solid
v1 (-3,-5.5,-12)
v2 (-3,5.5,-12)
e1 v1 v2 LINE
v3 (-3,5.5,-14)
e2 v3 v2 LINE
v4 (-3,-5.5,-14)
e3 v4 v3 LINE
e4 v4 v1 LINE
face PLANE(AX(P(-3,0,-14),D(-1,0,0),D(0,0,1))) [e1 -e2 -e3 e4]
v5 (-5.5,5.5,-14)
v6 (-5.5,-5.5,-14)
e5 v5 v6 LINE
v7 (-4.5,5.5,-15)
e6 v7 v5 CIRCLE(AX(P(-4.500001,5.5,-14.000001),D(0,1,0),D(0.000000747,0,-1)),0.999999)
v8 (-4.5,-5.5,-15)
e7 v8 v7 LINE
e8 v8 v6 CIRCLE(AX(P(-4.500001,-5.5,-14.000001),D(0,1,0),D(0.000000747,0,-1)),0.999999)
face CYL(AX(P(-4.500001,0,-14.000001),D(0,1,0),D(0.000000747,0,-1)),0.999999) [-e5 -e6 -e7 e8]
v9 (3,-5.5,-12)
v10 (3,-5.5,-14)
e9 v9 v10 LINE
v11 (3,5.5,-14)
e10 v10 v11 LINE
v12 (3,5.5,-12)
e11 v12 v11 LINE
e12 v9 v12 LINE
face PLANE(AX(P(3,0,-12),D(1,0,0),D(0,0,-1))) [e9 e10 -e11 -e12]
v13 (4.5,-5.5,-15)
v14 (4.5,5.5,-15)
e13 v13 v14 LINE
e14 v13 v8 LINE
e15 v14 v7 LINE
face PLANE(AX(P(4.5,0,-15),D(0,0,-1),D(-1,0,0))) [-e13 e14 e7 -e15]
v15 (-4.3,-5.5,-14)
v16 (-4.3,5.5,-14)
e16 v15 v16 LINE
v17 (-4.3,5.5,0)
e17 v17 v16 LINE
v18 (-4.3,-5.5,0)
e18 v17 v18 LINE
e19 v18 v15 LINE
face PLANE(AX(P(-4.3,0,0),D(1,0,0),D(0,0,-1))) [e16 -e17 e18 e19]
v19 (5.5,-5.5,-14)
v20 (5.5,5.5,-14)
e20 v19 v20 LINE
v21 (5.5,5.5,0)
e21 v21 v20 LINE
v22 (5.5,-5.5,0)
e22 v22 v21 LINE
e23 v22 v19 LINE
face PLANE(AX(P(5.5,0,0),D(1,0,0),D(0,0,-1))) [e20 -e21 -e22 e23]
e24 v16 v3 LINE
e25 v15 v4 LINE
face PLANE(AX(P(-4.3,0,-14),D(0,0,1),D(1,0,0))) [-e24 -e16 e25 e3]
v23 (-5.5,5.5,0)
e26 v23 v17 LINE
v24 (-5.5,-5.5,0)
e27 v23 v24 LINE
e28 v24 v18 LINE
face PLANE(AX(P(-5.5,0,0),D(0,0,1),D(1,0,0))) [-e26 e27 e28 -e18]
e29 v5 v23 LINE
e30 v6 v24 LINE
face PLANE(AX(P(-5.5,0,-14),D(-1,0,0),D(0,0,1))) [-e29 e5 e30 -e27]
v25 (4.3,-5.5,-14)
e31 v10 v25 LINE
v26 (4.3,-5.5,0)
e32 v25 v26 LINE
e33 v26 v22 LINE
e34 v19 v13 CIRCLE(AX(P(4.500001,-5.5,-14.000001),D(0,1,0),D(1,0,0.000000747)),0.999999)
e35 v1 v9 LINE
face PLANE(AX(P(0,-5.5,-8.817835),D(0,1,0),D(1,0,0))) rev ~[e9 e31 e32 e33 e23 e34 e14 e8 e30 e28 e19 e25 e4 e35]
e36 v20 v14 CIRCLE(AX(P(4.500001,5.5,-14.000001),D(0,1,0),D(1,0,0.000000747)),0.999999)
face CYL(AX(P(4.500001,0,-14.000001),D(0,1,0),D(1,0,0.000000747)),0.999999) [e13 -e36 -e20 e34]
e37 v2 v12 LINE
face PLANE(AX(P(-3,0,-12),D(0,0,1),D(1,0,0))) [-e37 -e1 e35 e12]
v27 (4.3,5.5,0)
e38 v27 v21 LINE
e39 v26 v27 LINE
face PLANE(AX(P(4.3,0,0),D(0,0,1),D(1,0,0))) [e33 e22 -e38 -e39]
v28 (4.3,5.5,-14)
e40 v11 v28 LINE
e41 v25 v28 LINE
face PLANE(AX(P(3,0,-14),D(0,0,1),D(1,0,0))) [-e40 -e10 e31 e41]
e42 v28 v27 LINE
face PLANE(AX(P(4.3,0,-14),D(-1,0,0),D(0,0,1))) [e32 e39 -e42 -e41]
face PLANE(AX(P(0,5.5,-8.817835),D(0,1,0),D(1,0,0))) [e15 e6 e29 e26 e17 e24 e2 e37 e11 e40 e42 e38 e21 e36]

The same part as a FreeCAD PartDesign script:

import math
import FreeCAD as App
import Part
import Sketcher

V = App.Vector

doc = App.newDocument("Part")
params = doc.addObject("Spreadsheet::Sheet", "Params")
for row, (alias, value) in enumerate([
    ("sketch1_radius", "0.999999 mm"),
    ("sketch1_width", "6 mm"),
    ("sketch1_width2", "9 mm"),
    ("sketch1_height", "14 mm"),
    ("sketch1_height2", "2 mm"),
    ("pad1_length", "11 mm"),
], start=1):
    params.set(f"A{row}", alias)
    params.set(f"B{row}", "=" + value)
    params.setAlias(f"B{row}", alias)

body = doc.addObject("PartDesign::Body", "Body")

# Sketch on XZ plane
sketch1 = doc.addObject("Sketcher::SketchObject", "Sketch")
body.addObject(sketch1)
sketch1.AttachmentSupport = (doc.XZ_Plane, [""])
sketch1.MapMode = "FlatFace"
sketch1.addGeometry([
    Part.LineSegment(V(-4.3, 0, 0), V(-4.3, -14, 0)),  # 0
    Part.LineSegment(V(-4.3, -14, 0), V(-3, -14, 0)),  # 1
    Part.LineSegment(V(-3, -14, 0), V(-3, -12, 0)),  # 2
    Part.LineSegment(V(-3, -12, 0), V(3, -12, 0)),  # 3
    Part.LineSegment(V(3, -12, 0), V(3, -14, 0)),  # 4
    Part.LineSegment(V(3, -14, 0), V(4.3, -14, 0)),  # 5
    Part.LineSegment(V(4.3, -14, 0), V(4.3, 0, 0)),  # 6
    Part.LineSegment(V(4.3, 0, 0), V(5.5, 0, 0)),  # 7
    Part.LineSegment(V(5.5, 0, 0), V(5.5, -14, 0)),  # 8
    Part.ArcOfCircle(Part.Circle(V(4.500001, -14.000001, 0), V(0, 0, 1), 0.999999), math.radians(-90.000043), math.radians(0.000043)),  # 9
    Part.LineSegment(V(4.5, -15, 0), V(-4.5, -15, 0)),  # 10
    Part.ArcOfCircle(Part.Circle(V(-4.500001, -14.000001, 0), V(0, 0, 1), 0.999999), math.radians(179.999957), math.radians(270.000043)),  # 11
    Part.LineSegment(V(-5.5, -14, 0), V(-5.5, 0, 0)),  # 12
    Part.LineSegment(V(-5.5, 0, 0), V(-4.3, 0, 0)),  # 13
], False)
sketch1.addConstraint([
    Sketcher.Constraint("Coincident", 0, 2, 1, 1),
    Sketcher.Constraint("Coincident", 1, 2, 2, 1),
    Sketcher.Constraint("Coincident", 2, 2, 3, 1),
    Sketcher.Constraint("Coincident", 3, 2, 4, 1),
    Sketcher.Constraint("Coincident", 4, 2, 5, 1),
    Sketcher.Constraint("Coincident", 5, 2, 6, 1),
    Sketcher.Constraint("Coincident", 6, 2, 7, 1),
    Sketcher.Constraint("Coincident", 7, 2, 8, 1),
    Sketcher.Constraint("Tangent", 8, 2, 9, 2),
    Sketcher.Constraint("Tangent", 9, 1, 10, 1),
    Sketcher.Constraint("Tangent", 10, 2, 11, 2),
    Sketcher.Constraint("Tangent", 11, 1, 12, 1),
    Sketcher.Constraint("Coincident", 12, 2, 13, 1),
    Sketcher.Constraint("Coincident", 13, 2, 0, 1),
    Sketcher.Constraint("Vertical", 0),
    Sketcher.Constraint("Horizontal", 1),
    Sketcher.Constraint("Vertical", 2),
    Sketcher.Constraint("Horizontal", 3),
    Sketcher.Constraint("Vertical", 4),
    Sketcher.Constraint("Horizontal", 5),
    Sketcher.Constraint("Vertical", 6),
    Sketcher.Constraint("Horizontal", 7),
    Sketcher.Constraint("Vertical", 8),
    Sketcher.Constraint("Horizontal", 10),
    Sketcher.Constraint("Vertical", 12),
    Sketcher.Constraint("Horizontal", 13),
    Sketcher.Constraint("Equal", 9, 11),
    Sketcher.Constraint("Symmetric", 7, 2, 12, 2, -1, 1),
    Sketcher.Constraint("Symmetric", 1, 2, 4, 2, -2),
    Sketcher.Constraint("Symmetric", 6, 2, 13, 2, -2),
    Sketcher.Constraint("Horizontal", 11, 3, 0, 2),
    Sketcher.Constraint("Radius", 9, 0.999999),
    Sketcher.Constraint("DistanceX", 3, 1, 3, 2, 6.0),
    Sketcher.Constraint("DistanceX", 10, 2, 10, 1, 9.0),
    Sketcher.Constraint("DistanceY", 0, 2, 0, 1, 14.0),
    Sketcher.Constraint("DistanceY", 2, 1, 2, 2, 2.0),
    Sketcher.Constraint("DistanceX", 1, 1, 1, 2, 1.3),
])
sketch1.setExpression("Constraints[31]", "Params.sketch1_radius")
sketch1.setExpression("Constraints[32]", "Params.sketch1_width")
sketch1.setExpression("Constraints[33]", "Params.sketch1_width2")
sketch1.setExpression("Constraints[34]", "Params.sketch1_height")
sketch1.setExpression("Constraints[35]", "Params.sketch1_height2")
pad1 = doc.addObject("PartDesign::Pad", "Pad")
body.addObject(pad1)
pad1.Profile = sketch1
pad1.setExpression("Length", "Params.pad1_length")
pad1.Midplane = True

doc.recompute()
